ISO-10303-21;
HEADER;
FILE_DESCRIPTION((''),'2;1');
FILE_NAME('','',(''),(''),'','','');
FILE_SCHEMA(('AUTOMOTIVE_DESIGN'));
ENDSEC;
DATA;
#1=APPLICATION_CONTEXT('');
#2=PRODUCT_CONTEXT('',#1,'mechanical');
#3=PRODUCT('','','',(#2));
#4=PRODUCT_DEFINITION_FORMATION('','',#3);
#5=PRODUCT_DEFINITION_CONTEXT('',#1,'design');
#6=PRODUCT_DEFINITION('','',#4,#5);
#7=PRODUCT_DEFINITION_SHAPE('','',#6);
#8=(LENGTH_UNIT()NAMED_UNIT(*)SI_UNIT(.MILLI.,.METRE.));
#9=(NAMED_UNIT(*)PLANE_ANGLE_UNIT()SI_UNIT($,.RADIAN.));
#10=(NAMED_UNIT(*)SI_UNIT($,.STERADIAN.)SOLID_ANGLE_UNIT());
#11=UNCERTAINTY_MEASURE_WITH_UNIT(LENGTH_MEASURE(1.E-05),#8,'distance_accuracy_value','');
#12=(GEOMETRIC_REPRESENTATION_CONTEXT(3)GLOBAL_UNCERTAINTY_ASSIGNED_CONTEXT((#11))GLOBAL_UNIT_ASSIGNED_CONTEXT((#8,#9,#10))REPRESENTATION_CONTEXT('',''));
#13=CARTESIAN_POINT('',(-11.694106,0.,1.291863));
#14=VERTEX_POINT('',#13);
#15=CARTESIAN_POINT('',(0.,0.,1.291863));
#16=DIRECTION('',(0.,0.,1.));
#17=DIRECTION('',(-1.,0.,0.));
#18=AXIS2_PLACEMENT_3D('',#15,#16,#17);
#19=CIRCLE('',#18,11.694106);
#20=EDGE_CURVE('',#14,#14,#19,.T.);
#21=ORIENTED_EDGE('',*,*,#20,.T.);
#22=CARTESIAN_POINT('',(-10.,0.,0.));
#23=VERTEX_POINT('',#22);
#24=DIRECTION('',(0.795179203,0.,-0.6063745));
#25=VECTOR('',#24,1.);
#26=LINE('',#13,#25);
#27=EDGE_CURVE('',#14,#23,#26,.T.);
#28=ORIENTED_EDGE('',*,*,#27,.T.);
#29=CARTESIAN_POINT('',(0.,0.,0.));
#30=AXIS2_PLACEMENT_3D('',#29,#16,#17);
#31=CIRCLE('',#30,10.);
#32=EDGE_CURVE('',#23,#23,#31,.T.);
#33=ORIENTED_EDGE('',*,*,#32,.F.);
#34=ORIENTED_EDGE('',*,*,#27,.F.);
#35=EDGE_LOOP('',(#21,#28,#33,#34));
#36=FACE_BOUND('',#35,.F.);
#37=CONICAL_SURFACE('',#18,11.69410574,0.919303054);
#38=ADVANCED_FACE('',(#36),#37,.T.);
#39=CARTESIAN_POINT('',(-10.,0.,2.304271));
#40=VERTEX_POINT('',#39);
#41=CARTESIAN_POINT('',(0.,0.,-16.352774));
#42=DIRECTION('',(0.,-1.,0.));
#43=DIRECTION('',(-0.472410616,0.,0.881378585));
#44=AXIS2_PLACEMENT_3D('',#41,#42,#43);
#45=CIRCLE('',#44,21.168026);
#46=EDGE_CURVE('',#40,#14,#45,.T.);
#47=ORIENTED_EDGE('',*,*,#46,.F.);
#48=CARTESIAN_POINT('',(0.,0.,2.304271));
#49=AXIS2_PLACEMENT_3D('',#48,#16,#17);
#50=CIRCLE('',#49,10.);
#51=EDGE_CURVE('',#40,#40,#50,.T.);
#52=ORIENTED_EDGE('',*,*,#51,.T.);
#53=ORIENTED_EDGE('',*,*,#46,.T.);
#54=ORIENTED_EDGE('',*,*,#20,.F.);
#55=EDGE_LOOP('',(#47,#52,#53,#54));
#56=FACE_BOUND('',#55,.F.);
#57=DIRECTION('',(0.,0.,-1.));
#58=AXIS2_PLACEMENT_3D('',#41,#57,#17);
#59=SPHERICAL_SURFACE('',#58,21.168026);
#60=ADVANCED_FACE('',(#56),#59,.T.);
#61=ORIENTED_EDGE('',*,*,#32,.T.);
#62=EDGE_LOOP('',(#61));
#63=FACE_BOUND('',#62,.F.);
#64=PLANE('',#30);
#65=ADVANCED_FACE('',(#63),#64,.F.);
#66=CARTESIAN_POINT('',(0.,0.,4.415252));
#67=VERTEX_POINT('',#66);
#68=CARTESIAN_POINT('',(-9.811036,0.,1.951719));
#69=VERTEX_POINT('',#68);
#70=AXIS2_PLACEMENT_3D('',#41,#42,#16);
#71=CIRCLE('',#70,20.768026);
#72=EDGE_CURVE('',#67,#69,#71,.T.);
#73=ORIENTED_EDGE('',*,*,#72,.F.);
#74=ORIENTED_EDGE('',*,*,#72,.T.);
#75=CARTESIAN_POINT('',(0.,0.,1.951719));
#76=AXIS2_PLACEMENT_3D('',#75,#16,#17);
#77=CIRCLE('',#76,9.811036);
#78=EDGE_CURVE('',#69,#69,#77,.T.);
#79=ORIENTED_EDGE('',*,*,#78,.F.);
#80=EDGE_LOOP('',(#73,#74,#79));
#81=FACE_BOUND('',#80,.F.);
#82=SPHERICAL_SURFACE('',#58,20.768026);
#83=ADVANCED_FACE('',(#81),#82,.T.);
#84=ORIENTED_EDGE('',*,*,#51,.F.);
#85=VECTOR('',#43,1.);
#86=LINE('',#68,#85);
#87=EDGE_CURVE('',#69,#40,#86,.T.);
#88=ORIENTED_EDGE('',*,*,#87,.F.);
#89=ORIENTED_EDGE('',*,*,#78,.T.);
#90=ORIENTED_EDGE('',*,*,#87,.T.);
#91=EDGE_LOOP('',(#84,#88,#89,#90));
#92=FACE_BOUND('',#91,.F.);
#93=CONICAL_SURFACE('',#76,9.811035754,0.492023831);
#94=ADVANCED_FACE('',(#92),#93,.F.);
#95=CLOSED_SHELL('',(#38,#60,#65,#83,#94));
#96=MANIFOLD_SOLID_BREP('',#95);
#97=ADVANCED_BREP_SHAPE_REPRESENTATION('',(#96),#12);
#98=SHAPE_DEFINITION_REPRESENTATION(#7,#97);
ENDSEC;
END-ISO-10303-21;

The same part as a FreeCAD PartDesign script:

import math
import FreeCAD as App
import Part
import Sketcher

V = App.Vector
Q = App.Units.Quantity

doc = App.newDocument("Part")
body = doc.addObject("PartDesign::Body", "Body")

# Sketch on XZ plane
sketch1 = body.newObject("Sketcher::SketchObject", "Sketch")
sketch1.AttachmentSupport = (doc.getObject("XZ_Plane"), [""])
sketch1.MapMode = "FlatFace"
sketch1.addGeometry([
    Part.ArcOfCircle(Part.Circle(V(0, -16.35, 0), V(0, 0, 1), 20.77), math.radians(90), math.radians(118)),  # 0
    Part.LineSegment(V(-9.81, 1.95, 0), V(-10, 2.3, 0)),  # 1
    Part.ArcOfCircle(Part.Circle(V(0, -16.35, 0), V(0, 0, 1), 21.17), math.radians(118.19), math.radians(123.53)),  # 2
    Part.LineSegment(V(-11.69, 1.29, 0), V(-10, 0, 0)),  # 3
    Part.LineSegment(V(-10, 0, 0), V(0, 0, 0)),  # 4
    Part.LineSegment(V(0, 0, 0), V(0, 4.42, 0)),  # 5
], False)
sketch1.addConstraint([
    Sketcher.Constraint("Coincident", 0, 2, 1, 1),
    Sketcher.Constraint("Coincident", 1, 2, 2, 1),
    Sketcher.Constraint("Coincident", 2, 2, 3, 1),
    Sketcher.Constraint("Coincident", 3, 2, 4, 1),
    Sketcher.Constraint("Coincident", 4, 2, 5, 1),
    Sketcher.Constraint("Coincident", 5, 2, 0, 1),
    Sketcher.Constraint("Horizontal", 4),
    Sketcher.Constraint("Vertical", 5),
    Sketcher.Constraint("Coincident", 4, 2, -1, 1),
    Sketcher.Constraint("Coincident", 2, 3, 0, 3),
    Sketcher.Constraint("PointOnObject", 0, 3, -2),
    Sketcher.Constraint("Vertical", 1, 2, 3, 2),
    Sketcher.Constraint("DistanceX", 4, 1, 4, 2, Q("10 mm")),
    Sketcher.Constraint("Distance", 1, Q("0.4 mm")),
    Sketcher.Constraint("Radius", 0, Q("20.768026 mm")),
    Sketcher.Constraint("DistanceY", 5, 1, 5, 2, Q("4.415252 mm")),
    Sketcher.Constraint("Distance", 3, Q("2.13047 mm")),
    Sketcher.Constraint("DistanceY", -1, 1, 0, 2, Q("1.951719 mm")),
])
revolution = body.newObject("PartDesign::Revolution", "Revolution")
revolution.Profile = sketch1
revolution.ReferenceAxis = (sketch1, ["V_Axis"])
revolution.Angle = 360

doc.recompute()
